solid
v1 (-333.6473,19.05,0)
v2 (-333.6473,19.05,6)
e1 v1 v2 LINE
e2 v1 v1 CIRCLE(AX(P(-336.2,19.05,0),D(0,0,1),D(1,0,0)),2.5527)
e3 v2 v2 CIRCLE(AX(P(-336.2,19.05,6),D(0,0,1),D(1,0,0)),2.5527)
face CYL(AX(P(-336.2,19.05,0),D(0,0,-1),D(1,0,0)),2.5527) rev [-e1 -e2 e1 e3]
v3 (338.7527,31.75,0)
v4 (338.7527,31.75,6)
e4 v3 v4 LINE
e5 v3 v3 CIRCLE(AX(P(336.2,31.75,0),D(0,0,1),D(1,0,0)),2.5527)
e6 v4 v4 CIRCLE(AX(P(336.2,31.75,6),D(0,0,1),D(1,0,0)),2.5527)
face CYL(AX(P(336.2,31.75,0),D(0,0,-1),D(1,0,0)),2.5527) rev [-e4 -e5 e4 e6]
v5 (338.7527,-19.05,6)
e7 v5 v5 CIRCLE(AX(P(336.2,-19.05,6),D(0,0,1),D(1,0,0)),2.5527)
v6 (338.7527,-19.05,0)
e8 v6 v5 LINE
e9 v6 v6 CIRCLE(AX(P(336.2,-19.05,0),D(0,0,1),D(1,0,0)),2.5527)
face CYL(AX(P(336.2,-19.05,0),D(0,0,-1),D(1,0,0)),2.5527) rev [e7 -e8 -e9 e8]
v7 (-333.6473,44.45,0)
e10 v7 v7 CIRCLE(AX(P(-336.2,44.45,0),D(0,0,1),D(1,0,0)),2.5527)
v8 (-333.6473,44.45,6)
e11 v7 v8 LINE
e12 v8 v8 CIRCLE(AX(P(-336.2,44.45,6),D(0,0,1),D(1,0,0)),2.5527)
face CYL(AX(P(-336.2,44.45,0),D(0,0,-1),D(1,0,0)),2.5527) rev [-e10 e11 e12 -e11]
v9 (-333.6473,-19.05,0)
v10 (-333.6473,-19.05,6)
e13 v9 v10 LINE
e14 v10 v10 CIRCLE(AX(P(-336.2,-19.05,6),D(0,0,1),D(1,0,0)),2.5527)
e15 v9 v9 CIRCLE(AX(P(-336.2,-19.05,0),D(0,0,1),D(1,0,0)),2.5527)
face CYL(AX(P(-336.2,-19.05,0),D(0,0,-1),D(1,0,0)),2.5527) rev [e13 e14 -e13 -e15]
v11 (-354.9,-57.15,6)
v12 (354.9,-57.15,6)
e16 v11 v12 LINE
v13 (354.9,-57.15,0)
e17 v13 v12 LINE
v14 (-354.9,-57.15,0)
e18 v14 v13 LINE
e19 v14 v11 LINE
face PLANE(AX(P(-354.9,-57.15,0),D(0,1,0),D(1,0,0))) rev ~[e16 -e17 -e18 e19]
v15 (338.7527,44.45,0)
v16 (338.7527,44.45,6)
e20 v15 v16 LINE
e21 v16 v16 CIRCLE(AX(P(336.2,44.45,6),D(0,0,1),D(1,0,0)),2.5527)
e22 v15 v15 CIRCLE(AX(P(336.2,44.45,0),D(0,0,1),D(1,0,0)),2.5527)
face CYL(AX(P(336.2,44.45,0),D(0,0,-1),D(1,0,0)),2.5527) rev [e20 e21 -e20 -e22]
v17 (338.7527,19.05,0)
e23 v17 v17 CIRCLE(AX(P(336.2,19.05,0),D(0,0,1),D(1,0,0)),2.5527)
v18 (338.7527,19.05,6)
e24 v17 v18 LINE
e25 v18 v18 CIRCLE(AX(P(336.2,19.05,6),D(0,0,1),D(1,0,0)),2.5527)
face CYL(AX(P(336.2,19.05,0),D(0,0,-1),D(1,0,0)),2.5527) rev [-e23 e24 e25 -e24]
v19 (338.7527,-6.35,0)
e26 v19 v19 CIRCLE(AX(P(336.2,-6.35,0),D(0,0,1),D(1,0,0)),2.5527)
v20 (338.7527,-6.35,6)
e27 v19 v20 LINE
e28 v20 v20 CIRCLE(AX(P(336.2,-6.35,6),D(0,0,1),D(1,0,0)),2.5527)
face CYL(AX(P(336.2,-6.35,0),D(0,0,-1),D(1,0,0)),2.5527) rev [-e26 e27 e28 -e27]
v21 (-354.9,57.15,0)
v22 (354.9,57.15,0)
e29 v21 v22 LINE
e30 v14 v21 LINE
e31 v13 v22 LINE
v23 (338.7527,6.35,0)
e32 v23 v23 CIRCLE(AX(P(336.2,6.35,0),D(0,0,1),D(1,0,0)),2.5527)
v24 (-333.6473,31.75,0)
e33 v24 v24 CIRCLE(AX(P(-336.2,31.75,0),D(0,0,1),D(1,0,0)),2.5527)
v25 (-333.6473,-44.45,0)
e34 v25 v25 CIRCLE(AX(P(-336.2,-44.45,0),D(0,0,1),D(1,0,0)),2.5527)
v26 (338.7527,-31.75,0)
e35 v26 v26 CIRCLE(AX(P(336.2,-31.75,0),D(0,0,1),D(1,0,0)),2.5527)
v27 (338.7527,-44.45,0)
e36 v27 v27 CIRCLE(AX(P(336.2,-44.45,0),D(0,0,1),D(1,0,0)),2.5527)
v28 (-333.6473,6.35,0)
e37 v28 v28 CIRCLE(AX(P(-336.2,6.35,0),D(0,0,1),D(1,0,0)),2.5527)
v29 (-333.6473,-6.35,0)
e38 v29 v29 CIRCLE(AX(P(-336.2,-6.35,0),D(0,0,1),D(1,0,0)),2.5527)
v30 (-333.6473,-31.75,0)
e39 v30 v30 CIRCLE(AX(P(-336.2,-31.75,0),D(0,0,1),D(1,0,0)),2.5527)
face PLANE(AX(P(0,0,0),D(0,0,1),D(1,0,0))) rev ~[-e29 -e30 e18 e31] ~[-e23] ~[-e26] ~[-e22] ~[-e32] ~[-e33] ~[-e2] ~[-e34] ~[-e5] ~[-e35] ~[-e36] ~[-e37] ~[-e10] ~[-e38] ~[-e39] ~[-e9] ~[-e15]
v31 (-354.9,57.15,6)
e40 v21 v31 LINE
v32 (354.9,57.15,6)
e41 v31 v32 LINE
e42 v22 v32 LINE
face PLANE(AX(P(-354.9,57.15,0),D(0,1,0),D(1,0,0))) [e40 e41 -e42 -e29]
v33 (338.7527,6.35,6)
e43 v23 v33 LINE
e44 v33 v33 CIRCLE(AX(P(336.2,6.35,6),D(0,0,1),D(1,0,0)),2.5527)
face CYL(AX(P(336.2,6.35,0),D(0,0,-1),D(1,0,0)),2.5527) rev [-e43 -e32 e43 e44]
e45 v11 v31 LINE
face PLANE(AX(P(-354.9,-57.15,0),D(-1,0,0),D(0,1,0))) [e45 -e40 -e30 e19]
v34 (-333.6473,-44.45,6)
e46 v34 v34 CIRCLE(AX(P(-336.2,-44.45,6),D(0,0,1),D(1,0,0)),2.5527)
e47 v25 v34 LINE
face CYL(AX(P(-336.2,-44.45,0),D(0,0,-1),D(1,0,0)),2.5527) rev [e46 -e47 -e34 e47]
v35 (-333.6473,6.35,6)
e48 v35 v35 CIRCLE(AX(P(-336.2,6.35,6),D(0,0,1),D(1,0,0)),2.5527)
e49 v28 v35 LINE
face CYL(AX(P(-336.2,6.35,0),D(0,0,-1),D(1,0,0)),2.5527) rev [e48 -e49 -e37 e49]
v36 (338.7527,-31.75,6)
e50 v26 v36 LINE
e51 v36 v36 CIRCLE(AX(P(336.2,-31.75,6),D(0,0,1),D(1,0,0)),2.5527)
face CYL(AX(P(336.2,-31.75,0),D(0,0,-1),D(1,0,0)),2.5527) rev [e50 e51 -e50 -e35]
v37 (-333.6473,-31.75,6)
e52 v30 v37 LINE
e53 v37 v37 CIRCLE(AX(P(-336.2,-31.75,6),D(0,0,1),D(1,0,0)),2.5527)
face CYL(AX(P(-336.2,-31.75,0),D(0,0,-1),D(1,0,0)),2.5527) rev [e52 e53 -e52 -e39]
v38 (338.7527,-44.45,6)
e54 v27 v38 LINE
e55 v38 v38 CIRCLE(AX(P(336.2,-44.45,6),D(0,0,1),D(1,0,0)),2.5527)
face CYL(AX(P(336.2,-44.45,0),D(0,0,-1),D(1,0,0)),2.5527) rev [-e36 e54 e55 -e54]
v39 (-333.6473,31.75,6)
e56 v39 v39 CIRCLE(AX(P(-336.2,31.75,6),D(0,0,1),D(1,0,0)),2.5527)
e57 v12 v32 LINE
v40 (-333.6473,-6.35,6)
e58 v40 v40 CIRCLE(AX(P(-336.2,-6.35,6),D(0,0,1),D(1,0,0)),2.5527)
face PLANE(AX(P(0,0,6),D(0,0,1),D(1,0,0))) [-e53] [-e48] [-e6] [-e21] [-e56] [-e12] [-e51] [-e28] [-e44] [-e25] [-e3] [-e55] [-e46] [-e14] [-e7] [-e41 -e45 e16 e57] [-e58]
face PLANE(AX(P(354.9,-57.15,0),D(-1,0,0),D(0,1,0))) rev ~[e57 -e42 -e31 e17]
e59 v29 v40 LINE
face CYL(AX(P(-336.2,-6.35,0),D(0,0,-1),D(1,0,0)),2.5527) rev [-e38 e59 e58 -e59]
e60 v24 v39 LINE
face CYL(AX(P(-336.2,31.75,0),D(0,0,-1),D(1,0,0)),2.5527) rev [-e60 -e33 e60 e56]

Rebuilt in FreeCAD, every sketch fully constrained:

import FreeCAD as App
import Part
import Sketcher
Q = App.Units.Quantity

doc = App.newDocument("Part")
body = doc.addObject("PartDesign::Body", "Body")

sketch1 = body.newObject("Sketcher::SketchObject", "Sketch")
sketch1.AttachmentSupport = (doc.getObject("XY_Plane"), [""])
sketch1.MapMode = "FlatFace"
sketch1.addGeometry([
    Part.LineSegment(App.Vector(-354.9, 57.1, 0), App.Vector(-354.9, -57.1, 0)),
    Part.LineSegment(App.Vector(-354.9, -57.1, 0), App.Vector(354.9, -57.1, 0)),
    Part.LineSegment(App.Vector(354.9, -57.1, 0), App.Vector(354.9, 57.1, 0)),
    Part.LineSegment(App.Vector(354.9, 57.1, 0), App.Vector(-354.9, 57.1, 0)),
    Part.Circle(App.Vector(-336.2, -44.5, 0), App.Vector(0, 0, 1), 2.6),
    Part.Circle(App.Vector(-336.2, -31.8, 0), App.Vector(0, 0, 1), 2.6),
    Part.Circle(App.Vector(-336.2, -19.1, 0), App.Vector(0, 0, 1), 2.6),
    Part.Circle(App.Vector(-336.2, -6.3, 0), App.Vector(0, 0, 1), 2.6),
    Part.Circle(App.Vector(336.2, -44.5, 0), App.Vector(0, 0, 1), 2.6),
    Part.Circle(App.Vector(336.2, -31.8, 0), App.Vector(0, 0, 1), 2.6),
    Part.Circle(App.Vector(336.2, -19.1, 0), App.Vector(0, 0, 1), 2.6),
    Part.Circle(App.Vector(336.2, -6.3, 0), App.Vector(0, 0, 1), 2.6),
    Part.Circle(App.Vector(-336.2, 6.3, 0), App.Vector(0, 0, 1), 2.6),
    Part.Circle(App.Vector(-336.2, 19.1, 0), App.Vector(0, 0, 1), 2.6),
    Part.Circle(App.Vector(-336.2, 31.8, 0), App.Vector(0, 0, 1), 2.6),
    Part.Circle(App.Vector(-336.2, 44.5, 0), App.Vector(0, 0, 1), 2.6),
    Part.Circle(App.Vector(336.2, 6.3, 0), App.Vector(0, 0, 1), 2.6),
    Part.Circle(App.Vector(336.2, 19.1, 0), App.Vector(0, 0, 1), 2.6),
    Part.Circle(App.Vector(336.2, 31.8, 0), App.Vector(0, 0, 1), 2.6),
    Part.Circle(App.Vector(336.2, 44.5, 0), App.Vector(0, 0, 1), 2.6),
], False)
sketch1.addConstraint([
    Sketcher.Constraint("Coincident", 0, 2, 1, 1),
    Sketcher.Constraint("Coincident", 1, 2, 2, 1),
    Sketcher.Constraint("Coincident", 2, 2, 3, 1),
    Sketcher.Constraint("Coincident", 3, 2, 0, 1),
    Sketcher.Constraint("Vertical", 0),
    Sketcher.Constraint("Horizontal", 1),
    Sketcher.Constraint("Vertical", 2),
    Sketcher.Constraint("Horizontal", 3),
    Sketcher.Constraint("Equal", 4, 5),
    Sketcher.Constraint("Equal", 5, 6),
    Sketcher.Constraint("Equal", 6, 7),
    Sketcher.Constraint("Equal", 7, 8),
    Sketcher.Constraint("Equal", 8, 9),
    Sketcher.Constraint("Equal", 9, 10),
    Sketcher.Constraint("Equal", 10, 11),
    Sketcher.Constraint("Equal", 11, 12),
    Sketcher.Constraint("Equal", 12, 13),
    Sketcher.Constraint("Equal", 13, 14),
    Sketcher.Constraint("Equal", 14, 15),
    Sketcher.Constraint("Equal", 15, 16),
    Sketcher.Constraint("Equal", 16, 17),
    Sketcher.Constraint("Equal", 17, 18),
    Sketcher.Constraint("Equal", 18, 19),
    Sketcher.Constraint("Symmetric", 11, 3, 12, 3, -1, 1),
    Sketcher.Constraint("Symmetric", 10, 3, 13, 3, -1, 1),
    Sketcher.Constraint("Symmetric", 9, 3, 14, 3, -1, 1),
    Sketcher.Constraint("Symmetric", 8, 3, 15, 3, -1, 1),
    Sketcher.Constraint("Symmetric", 7, 3, 16, 3, -1, 1),
    Sketcher.Constraint("Symmetric", 6, 3, 17, 3, -1, 1),
    Sketcher.Constraint("Symmetric", 5, 3, 18, 3, -1, 1),
    Sketcher.Constraint("Symmetric", 4, 3, 19, 3, -1, 1),
    Sketcher.Constraint("Symmetric", 0, 2, 2, 2, -1, 1),
    Sketcher.Constraint("Symmetric", 4, 3, 8, 3, -2),
    Sketcher.Constraint("Symmetric", 5, 3, 9, 3, -2),
    Sketcher.Constraint("Symmetric", 6, 3, 10, 3, -2),
    Sketcher.Constraint("Symmetric", 7, 3, 11, 3, -2),
    Sketcher.Constraint("Vertical", 4, 3, 5, 3),
    Sketcher.Constraint("Vertical", 5, 3, 6, 3),
    Sketcher.Constraint("Vertical", 6, 3, 7, 3),
    Sketcher.Constraint("DistanceX", 1, 1, 1, 2, Q("709.8 mm")),
    Sketcher.Constraint("DistanceY", 0, 2, 0, 1, Q("114.3 mm")),
    Sketcher.Constraint("Diameter", 4, Q("5.1054 mm")),
    Sketcher.Constraint("DistanceX", 4, 3, -1, 1, Q("336.2 mm")),
    Sketcher.Constraint("DistanceY", 4, 3, 5, 3, Q("12.7 mm")),
    Sketcher.Constraint("DistanceY", 5, 3, 6, 3, Q("12.7 mm")),
    Sketcher.Constraint("DistanceY", 6, 3, 7, 3, Q("12.7 mm")),
    Sketcher.Constraint("DistanceY", 7, 3, 12, 3, Q("12.7 mm")),
])
pad1 = body.newObject("PartDesign::Pad", "Pad")
pad1.Profile = sketch1
pad1.Length = 6

doc.recompute()
